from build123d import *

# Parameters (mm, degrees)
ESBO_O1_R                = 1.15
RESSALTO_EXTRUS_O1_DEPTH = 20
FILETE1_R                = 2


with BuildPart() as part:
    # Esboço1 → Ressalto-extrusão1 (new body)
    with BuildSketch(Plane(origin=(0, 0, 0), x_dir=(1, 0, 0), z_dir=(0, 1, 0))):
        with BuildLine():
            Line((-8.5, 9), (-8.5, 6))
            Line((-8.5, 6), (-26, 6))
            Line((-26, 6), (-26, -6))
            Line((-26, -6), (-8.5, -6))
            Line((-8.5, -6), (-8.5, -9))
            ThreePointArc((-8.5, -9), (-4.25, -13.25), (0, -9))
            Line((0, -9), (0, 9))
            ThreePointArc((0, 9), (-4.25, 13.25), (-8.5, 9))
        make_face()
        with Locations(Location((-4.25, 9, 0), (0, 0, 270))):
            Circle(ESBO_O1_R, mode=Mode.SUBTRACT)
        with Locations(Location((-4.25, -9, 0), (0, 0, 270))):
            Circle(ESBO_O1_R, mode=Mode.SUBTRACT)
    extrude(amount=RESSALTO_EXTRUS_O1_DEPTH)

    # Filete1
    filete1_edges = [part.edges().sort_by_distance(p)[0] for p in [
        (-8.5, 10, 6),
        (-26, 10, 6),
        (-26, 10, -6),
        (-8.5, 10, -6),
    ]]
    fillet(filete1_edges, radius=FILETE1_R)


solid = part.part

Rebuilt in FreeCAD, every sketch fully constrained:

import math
import FreeCAD as App
import Part
import Sketcher
from FreeCAD import Vector
Q = App.Units.Quantity


def edges_at(feature, points):
    """Names of the edges that pass closest to the given points."""
    edges = feature.Shape.Edges
    near = lambda p: min(range(len(edges)), key=lambda i: edges[i].distToShape(Part.Vertex(*p))[0])
    return sorted({f"Edge{near(p) + 1}" for p in points})

doc = App.newDocument("Part")
params = doc.addObject("Spreadsheet::Sheet", "Params")
for row, (alias, value) in enumerate([
    ("sketch1_diameter", "2.3 mm"),
    ("sketch1_height", "3 mm"),
    ("sketch1_height2", "12 mm"),
    ("sketch1_radius", "4.25 mm"),
    ("sketch1_width", "17.5 mm"),
    ("pad1_length", "20 mm"),
    ("fillet_radius", "2 mm"),
], start=1):
    params.set(f"A{row}", alias)
    params.set(f"B{row}", "=" + value)
    params.setAlias(f"B{row}", alias)

body = doc.addObject("PartDesign::Body", "Body")

sketch1 = body.newObject("Sketcher::SketchObject", "Sketch")
sketch1.AttachmentSupport = (doc.getObject("XZ_Plane"), [""])
sketch1.MapMode = "FlatFace"
sketch1.addGeometry(Part.LineSegment(Vector(-8.5, -9, 0), Vector(-8.5, -6, 0)), False)
sketch1.addGeometry(Part.LineSegment(Vector(-8.5, -6, 0), Vector(-26, -6, 0)), False)
sketch1.addGeometry(Part.LineSegment(Vector(-26, -6, 0), Vector(-26, 6, 0)), False)
sketch1.addGeometry(Part.LineSegment(Vector(-26, 6, 0), Vector(-8.5, 6, 0)), False)
sketch1.addGeometry(Part.LineSegment(Vector(-8.5, 6, 0), Vector(-8.5, 9, 0)), False)
sketch1.addGeometry(Part.ArcOfCircle(Part.Circle(Vector(-4.25, 9, 0), Vector(0, 0, 1), 4.25), math.radians(0), math.radians(180)), False)
sketch1.addGeometry(Part.LineSegment(Vector(0, 9, 0), Vector(0, -9, 0)), False)
sketch1.addGeometry(Part.ArcOfCircle(Part.Circle(Vector(-4.25, -9, 0), Vector(0, 0, 1), 4.25), math.radians(180), math.radians(360)), False)
sketch1.addGeometry(Part.Circle(Vector(-4.25, 9, 0), Vector(0, 0, 1), 1.15), False)
sketch1.addGeometry(Part.Circle(Vector(-4.25, -9, 0), Vector(0, 0, 1), 1.15), False)
sketch1.addConstraint(Sketcher.Constraint("Coincident", 0, 2, 1, 1))
sketch1.addConstraint(Sketcher.Constraint("Coincident", 1, 2, 2, 1))
sketch1.addConstraint(Sketcher.Constraint("Coincident", 2, 2, 3, 1))
sketch1.addConstraint(Sketcher.Constraint("Coincident", 3, 2, 4, 1))
sketch1.addConstraint(Sketcher.Constraint("Tangent", 4, 2, 5, 2))
sketch1.addConstraint(Sketcher.Constraint("Tangent", 5, 1, 6, 1))
sketch1.addConstraint(Sketcher.Constraint("Tangent", 6, 2, 7, 2))
sketch1.addConstraint(Sketcher.Constraint("Tangent", 7, 1, 0, 1))
sketch1.addConstraint(Sketcher.Constraint("Vertical", 0))
sketch1.addConstraint(Sketcher.Constraint("Horizontal", 1))
sketch1.addConstraint(Sketcher.Constraint("Vertical", 2))
sketch1.addConstraint(Sketcher.Constraint("Horizontal", 3))
sketch1.addConstraint(Sketcher.Constraint("Vertical", 4))
sketch1.addConstraint(Sketcher.Constraint("Vertical", 6))
sketch1.addConstraint(Sketcher.Constraint("Coincident", 8, 3, 5, 3))
sketch1.addConstraint(Sketcher.Constraint("Coincident", 9, 3, 7, 3))
sketch1.addConstraint(Sketcher.Constraint("Equal", 5, 7))
sketch1.addConstraint(Sketcher.Constraint("Equal", 8, 9))
sketch1.addConstraint(Sketcher.Constraint("Symmetric", 5, 1, 6, 2, -1, 1))
sketch1.addConstraint(Sketcher.Constraint("Equal", 0, 4))
sketch1.addConstraint(Sketcher.Constraint("Diameter", 8, Q("2.3 mm")))
sketch1.addConstraint(Sketcher.Constraint("DistanceY", 0, 1, 0, 2, Q("3 mm")))
sketch1.addConstraint(Sketcher.Constraint("DistanceY", 2, 1, 2, 2, Q("12 mm")))
sketch1.addConstraint(Sketcher.Constraint("Radius", 5, Q("4.25 mm")))
sketch1.addConstraint(Sketcher.Constraint("DistanceX", 1, 2, 1, 1, Q("17.5 mm")))
sketch1.setExpression("Constraints[20]", "Params.sketch1_diameter")
sketch1.setExpression("Constraints[21]", "Params.sketch1_height")
sketch1.setExpression("Constraints[22]", "Params.sketch1_height2")
sketch1.setExpression("Constraints[23]", "Params.sketch1_radius")
sketch1.setExpression("Constraints[24]", "Params.sketch1_width")
pad1 = body.newObject("PartDesign::Pad", "Pad")
pad1.Profile = sketch1
pad1.setExpression("Length", "Params.pad1_length")
pad1.Reversed = True
doc.recompute()

fillet = body.newObject("PartDesign::Fillet", "Fillet")
fillet.Base = (pad1, edges_at(pad1, [
    (-8.5, 10, 6),
    (-26, 10, 6),
    (-26, 10, -6),
    (-8.5, 10, -6),
]))
fillet.setExpression("Radius", "Params.fillet_radius")

doc.recompute()
